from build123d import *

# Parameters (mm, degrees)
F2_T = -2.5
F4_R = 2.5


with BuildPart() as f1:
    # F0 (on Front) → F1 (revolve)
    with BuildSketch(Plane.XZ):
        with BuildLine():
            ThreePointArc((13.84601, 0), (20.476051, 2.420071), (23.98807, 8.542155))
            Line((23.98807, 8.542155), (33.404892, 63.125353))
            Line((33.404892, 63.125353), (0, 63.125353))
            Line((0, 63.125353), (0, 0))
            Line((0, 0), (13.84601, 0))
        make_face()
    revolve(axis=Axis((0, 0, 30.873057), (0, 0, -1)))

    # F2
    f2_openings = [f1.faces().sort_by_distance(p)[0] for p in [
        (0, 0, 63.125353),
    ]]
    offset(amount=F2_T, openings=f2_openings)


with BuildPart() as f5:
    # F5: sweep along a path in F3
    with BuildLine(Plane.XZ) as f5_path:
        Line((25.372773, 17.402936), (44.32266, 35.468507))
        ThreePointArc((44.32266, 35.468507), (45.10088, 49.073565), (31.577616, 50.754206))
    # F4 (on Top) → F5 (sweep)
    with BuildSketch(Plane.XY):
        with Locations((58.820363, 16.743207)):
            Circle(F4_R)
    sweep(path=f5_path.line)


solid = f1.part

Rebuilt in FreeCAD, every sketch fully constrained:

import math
import FreeCAD as App
import Part
import Sketcher


def faces_at(feature, points):
    """Names of the faces that lie closest to the given points."""
    faces = feature.Shape.Faces
    near = lambda p: min(range(len(faces)), key=lambda i: faces[i].distToShape(Part.Vertex(*p))[0])
    return sorted({f"Face{near(p) + 1}" for p in points})

doc = App.newDocument("Part")
body = doc.addObject("PartDesign::Body", "Body")

sketch1 = body.newObject("Sketcher::SketchObject", "Sketch")
sketch1.AttachmentSupport = (doc.getObject("XZ_Plane"), [""])
sketch1.MapMode = "FlatFace"
sketch1.addGeometry([
    Part.ArcOfCircle(Part.Circle(App.Vector(14, 10, 0), App.Vector(0, 0, 1), 10), math.radians(-90), math.radians(-10)),
    Part.LineSegment(App.Vector(24, 9, 0), App.Vector(33, 63, 0)),
    Part.LineSegment(App.Vector(33, 63, 0), App.Vector(0, 63, 0)),
    Part.LineSegment(App.Vector(0, 63, 0), App.Vector(0, 0, 0)),
    Part.LineSegment(App.Vector(0, 0, 0), App.Vector(14, 0, 0)),
], False)
sketch1.addConstraint([
    Sketcher.Constraint("Tangent", 0, 2, 1, 1),
    Sketcher.Constraint("Coincident", 1, 2, 2, 1),
    Sketcher.Constraint("Coincident", 2, 2, 3, 1),
    Sketcher.Constraint("Coincident", 3, 2, 4, 1),
    Sketcher.Constraint("Tangent", 4, 2, 0, 1),
    Sketcher.Constraint("Horizontal", 2),
    Sketcher.Constraint("Vertical", 3),
    Sketcher.Constraint("Horizontal", 4),
    Sketcher.Constraint("Coincident", 3, 2, -1, 1),
    Sketcher.Constraint("Radius", 0, 10.291889),
    Sketcher.Constraint("DistanceX", 2, 2, 2, 1, 33.404892),
    Sketcher.Constraint("DistanceX", 4, 1, 4, 2, 13.84601),
    Sketcher.Constraint("Distance", 1, 55.389548),
])
revolution = body.newObject("PartDesign::Revolution", "Revolution")
revolution.Profile = sketch1
revolution.ReferenceAxis = (sketch1, ["V_Axis"])
revolution.Angle = 360
doc.recompute()

thickness = body.newObject("PartDesign::Thickness", "Thickness")
thickness.Base = (revolution, faces_at(revolution, [(0, 0, 63.125)]))
thickness.Value = 2.5
thickness.Reversed = True
thickness.Join = "Arc"
body2 = doc.addObject("PartDesign::Body", "Body001")

sketch2 = body2.newObject("Sketcher::SketchObject", "Sketch001")
sketch2.AttachmentSupport = (doc.getObject("XY_Plane001"), [""])
sketch2.MapMode = "FlatFace"
sketch2.addGeometry(Part.Circle(App.Vector(58.8, 16.7, 0), App.Vector(0, 0, 1), 2.5), False)
sketch2.addConstraint([
    Sketcher.Constraint("Diameter", 0, 5.0),
    Sketcher.Constraint("DistanceX", -1, 1, 0, 3, 58.820363),
    Sketcher.Constraint("DistanceY", -1, 1, 0, 3, 16.743207),
])

sketch3 = body2.newObject("Sketcher::SketchObject", "Sketch002")
sketch3.AttachmentSupport = (doc.getObject("XZ_Plane001"), [""])
sketch3.MapMode = "FlatFace"
sketch3.addGeometry([
    Part.LineSegment(App.Vector(25, 17, 0), App.Vector(44, 35, 0)),
    Part.ArcOfCircle(Part.Circle(App.Vector(37, 43, 0), App.Vector(0, 0, 1), 10), math.radians(-46), math.radians(126)),
], False)
sketch3.addConstraint([
    Sketcher.Constraint("Tangent", 0, 2, 1, 1),
    Sketcher.Constraint("Radius", 1, 9.973036),
    Sketcher.Constraint("DistanceY", 0, 2, 1, 2, 15.285699),
    Sketcher.Constraint("Distance", 0, 26.18135),
    Sketcher.Constraint("DistanceX", -1, 1, 0, 2, 44.32266),
    Sketcher.Constraint("DistanceY", 0, 1, 1, 3, 25.283988),
    Sketcher.Constraint("DistanceY", -1, 1, 1, 3, 42.686924),
])
doc.recompute()

additivepipe = body2.newObject("PartDesign::AdditivePipe", "AdditivePipe")
additivepipe.Profile = sketch2
additivepipe.Spine = (sketch3, ["Edge1", "Edge2"])
body2.Visibility = False

doc.recompute()
